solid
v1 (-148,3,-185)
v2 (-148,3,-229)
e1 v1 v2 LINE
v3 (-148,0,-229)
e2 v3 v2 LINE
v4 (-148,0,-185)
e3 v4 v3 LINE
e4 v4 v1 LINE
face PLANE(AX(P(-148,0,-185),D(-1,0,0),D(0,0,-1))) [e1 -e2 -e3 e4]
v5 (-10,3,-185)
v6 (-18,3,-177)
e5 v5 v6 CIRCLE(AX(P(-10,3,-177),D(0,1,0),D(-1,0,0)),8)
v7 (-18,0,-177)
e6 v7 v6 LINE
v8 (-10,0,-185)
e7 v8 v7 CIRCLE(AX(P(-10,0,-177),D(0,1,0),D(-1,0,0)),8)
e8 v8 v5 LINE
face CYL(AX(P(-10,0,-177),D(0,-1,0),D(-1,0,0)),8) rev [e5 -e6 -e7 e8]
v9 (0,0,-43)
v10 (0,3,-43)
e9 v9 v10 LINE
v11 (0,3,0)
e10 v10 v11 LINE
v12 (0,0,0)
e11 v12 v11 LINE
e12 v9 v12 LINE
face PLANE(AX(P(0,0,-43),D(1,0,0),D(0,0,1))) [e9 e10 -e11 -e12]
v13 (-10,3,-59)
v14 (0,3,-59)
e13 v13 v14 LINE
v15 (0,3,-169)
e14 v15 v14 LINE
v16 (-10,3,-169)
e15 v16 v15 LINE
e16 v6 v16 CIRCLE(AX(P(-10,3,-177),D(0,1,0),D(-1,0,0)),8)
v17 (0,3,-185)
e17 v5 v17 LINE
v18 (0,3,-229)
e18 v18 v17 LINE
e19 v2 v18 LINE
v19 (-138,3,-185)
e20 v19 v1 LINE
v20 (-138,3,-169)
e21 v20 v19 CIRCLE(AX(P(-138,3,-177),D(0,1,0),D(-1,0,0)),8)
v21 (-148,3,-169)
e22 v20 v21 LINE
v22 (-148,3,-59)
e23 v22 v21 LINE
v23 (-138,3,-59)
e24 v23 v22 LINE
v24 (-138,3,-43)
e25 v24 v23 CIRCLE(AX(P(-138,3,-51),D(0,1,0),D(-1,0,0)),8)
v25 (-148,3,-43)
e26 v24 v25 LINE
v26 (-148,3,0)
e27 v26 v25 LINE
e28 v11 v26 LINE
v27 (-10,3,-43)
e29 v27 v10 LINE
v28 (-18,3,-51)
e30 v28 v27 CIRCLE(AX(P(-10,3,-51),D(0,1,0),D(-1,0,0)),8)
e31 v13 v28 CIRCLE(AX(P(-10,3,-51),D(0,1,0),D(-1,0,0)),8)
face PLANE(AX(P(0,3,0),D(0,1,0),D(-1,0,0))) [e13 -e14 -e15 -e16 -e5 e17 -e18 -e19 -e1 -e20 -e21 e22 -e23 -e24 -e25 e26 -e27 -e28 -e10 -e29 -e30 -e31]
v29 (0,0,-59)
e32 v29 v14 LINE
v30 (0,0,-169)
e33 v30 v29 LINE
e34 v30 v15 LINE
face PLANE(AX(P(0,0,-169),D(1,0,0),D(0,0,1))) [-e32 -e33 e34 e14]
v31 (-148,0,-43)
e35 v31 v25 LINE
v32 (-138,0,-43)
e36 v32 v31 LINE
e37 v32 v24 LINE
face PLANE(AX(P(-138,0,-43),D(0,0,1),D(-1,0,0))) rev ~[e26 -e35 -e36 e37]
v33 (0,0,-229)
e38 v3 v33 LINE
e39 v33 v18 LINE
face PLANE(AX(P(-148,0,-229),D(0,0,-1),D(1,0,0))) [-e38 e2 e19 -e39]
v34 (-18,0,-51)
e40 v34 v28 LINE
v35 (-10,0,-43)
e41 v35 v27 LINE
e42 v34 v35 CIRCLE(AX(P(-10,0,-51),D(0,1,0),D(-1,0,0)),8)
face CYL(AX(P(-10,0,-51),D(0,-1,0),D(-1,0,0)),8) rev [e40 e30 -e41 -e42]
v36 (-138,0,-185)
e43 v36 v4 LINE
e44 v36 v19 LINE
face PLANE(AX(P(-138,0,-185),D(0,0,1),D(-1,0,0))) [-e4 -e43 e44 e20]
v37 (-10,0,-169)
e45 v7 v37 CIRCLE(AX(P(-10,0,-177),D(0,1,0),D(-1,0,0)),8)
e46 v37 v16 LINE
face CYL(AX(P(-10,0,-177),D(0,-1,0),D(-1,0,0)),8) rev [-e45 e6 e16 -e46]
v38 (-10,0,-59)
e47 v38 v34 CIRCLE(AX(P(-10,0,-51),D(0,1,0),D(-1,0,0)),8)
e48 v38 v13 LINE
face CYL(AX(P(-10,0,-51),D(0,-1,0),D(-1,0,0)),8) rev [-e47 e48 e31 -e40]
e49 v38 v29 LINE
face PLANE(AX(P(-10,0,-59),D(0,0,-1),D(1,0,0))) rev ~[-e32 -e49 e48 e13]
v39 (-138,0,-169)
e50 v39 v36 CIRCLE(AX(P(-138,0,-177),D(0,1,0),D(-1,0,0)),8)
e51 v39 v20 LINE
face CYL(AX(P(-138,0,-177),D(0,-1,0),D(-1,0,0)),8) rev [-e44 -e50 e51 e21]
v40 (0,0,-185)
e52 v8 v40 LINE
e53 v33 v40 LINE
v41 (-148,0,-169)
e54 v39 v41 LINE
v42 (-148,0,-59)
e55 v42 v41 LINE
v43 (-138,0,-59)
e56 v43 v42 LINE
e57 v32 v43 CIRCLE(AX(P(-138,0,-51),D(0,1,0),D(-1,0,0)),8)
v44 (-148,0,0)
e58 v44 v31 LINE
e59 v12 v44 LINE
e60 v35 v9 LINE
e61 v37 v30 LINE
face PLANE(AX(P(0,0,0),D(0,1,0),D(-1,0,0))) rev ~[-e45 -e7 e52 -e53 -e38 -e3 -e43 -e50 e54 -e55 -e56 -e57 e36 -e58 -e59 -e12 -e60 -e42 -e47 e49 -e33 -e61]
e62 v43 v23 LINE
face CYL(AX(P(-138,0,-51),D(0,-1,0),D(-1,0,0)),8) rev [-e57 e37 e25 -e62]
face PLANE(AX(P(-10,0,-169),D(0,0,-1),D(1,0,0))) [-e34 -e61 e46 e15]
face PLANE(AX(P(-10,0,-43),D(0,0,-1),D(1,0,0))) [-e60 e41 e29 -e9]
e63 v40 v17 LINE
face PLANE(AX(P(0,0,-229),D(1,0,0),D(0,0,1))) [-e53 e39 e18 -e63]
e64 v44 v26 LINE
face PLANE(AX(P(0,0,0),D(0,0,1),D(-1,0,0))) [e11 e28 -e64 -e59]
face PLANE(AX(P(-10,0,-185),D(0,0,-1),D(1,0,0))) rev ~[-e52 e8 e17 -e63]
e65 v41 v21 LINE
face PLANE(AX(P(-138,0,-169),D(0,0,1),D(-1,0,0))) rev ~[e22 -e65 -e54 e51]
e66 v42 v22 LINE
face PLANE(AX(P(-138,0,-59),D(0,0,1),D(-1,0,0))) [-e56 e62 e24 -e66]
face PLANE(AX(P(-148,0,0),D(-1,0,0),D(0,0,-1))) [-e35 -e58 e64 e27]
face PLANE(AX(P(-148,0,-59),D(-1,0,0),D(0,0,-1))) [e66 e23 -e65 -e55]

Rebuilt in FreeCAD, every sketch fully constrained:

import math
import FreeCAD as App
import Part
import Sketcher
Q = App.Units.Quantity

doc = App.newDocument("Part")
body = doc.addObject("PartDesign::Body", "Body")

# Sketch on XZ plane
sketch1 = body.newObject("Sketcher::SketchObject", "Sketch")
sketch1.AttachmentSupport = (doc.getObject("XZ_Plane"), [""])
sketch1.MapMode = "FlatFace"
sketch1.addGeometry(Part.LineSegment(App.Vector(-148, 0, 0), App.Vector(0, 0, 0)), False)
sketch1.addGeometry(Part.LineSegment(App.Vector(0, 0, 0), App.Vector(0, -43, 0)), False)
sketch1.addGeometry(Part.LineSegment(App.Vector(0, -43, 0), App.Vector(-10, -43, 0)), False)
sketch1.addGeometry(Part.ArcOfCircle(Part.Circle(App.Vector(-10, -51, 0), App.Vector(0, 0, 1), 8), math.radians(90), math.radians(270)), False)
sketch1.addGeometry(Part.LineSegment(App.Vector(-10, -59, 0), App.Vector(0, -59, 0)), False)
sketch1.addGeometry(Part.LineSegment(App.Vector(0, -59, 0), App.Vector(0, -169, 0)), False)
sketch1.addGeometry(Part.LineSegment(App.Vector(0, -169, 0), App.Vector(-10, -169, 0)), False)
sketch1.addGeometry(Part.ArcOfCircle(Part.Circle(App.Vector(-10, -177, 0), App.Vector(0, 0, 1), 8), math.radians(90), math.radians(270)), False)
sketch1.addGeometry(Part.LineSegment(App.Vector(-10, -185, 0), App.Vector(0, -185, 0)), False)
sketch1.addGeometry(Part.LineSegment(App.Vector(0, -185, 0), App.Vector(0, -229, 0)), False)
sketch1.addGeometry(Part.LineSegment(App.Vector(0, -229, 0), App.Vector(-148, -229, 0)), False)
sketch1.addGeometry(Part.LineSegment(App.Vector(-148, -229, 0), App.Vector(-148, -185, 0)), False)
sketch1.addGeometry(Part.LineSegment(App.Vector(-148, -185, 0), App.Vector(-138, -185, 0)), False)
sketch1.addGeometry(Part.ArcOfCircle(Part.Circle(App.Vector(-138, -177, 0), App.Vector(0, 0, 1), 8), math.radians(-90), math.radians(90)), False)
sketch1.addGeometry(Part.LineSegment(App.Vector(-138, -169, 0), App.Vector(-148, -169, 0)), False)
sketch1.addGeometry(Part.LineSegment(App.Vector(-148, -169, 0), App.Vector(-148, -59, 0)), False)
sketch1.addGeometry(Part.LineSegment(App.Vector(-148, -59, 0), App.Vector(-138, -59, 0)), False)
sketch1.addGeometry(Part.ArcOfCircle(Part.Circle(App.Vector(-138, -51, 0), App.Vector(0, 0, 1), 8), math.radians(-90), math.radians(90)), False)
sketch1.addGeometry(Part.LineSegment(App.Vector(-138, -43, 0), App.Vector(-148, -43, 0)), False)
sketch1.addGeometry(Part.LineSegment(App.Vector(-148, -43, 0), App.Vector(-148, 0, 0)), False)
sketch1.addConstraint(Sketcher.Constraint("Coincident", 0, 2, 1, 1))
sketch1.addConstraint(Sketcher.Constraint("Coincident", 1, 2, 2, 1))
sketch1.addConstraint(Sketcher.Constraint("Tangent", 2, 2, 3, 1))
sketch1.addConstraint(Sketcher.Constraint("Tangent", 3, 2, 4, 1))
sketch1.addConstraint(Sketcher.Constraint("Coincident", 4, 2, 5, 1))
sketch1.addConstraint(Sketcher.Constraint("Coincident", 5, 2, 6, 1))
sketch1.addConstraint(Sketcher.Constraint("Tangent", 6, 2, 7, 1))
sketch1.addConstraint(Sketcher.Constraint("Tangent", 7, 2, 8, 1))
sketch1.addConstraint(Sketcher.Constraint("Coincident", 8, 2, 9, 1))
sketch1.addConstraint(Sketcher.Constraint("Coincident", 9, 2, 10, 1))
sketch1.addConstraint(Sketcher.Constraint("Coincident", 10, 2, 11, 1))
sketch1.addConstraint(Sketcher.Constraint("Coincident", 11, 2, 12, 1))
sketch1.addConstraint(Sketcher.Constraint("Tangent", 12, 2, 13, 1))
sketch1.addConstraint(Sketcher.Constraint("Tangent", 13, 2, 14, 1))
sketch1.addConstraint(Sketcher.Constraint("Coincident", 14, 2, 15, 1))
sketch1.addConstraint(Sketcher.Constraint("Coincident", 15, 2, 16, 1))
sketch1.addConstraint(Sketcher.Constraint("Tangent", 16, 2, 17, 1))
sketch1.addConstraint(Sketcher.Constraint("Tangent", 17, 2, 18, 1))
sketch1.addConstraint(Sketcher.Constraint("Coincident", 18, 2, 19, 1))
sketch1.addConstraint(Sketcher.Constraint("Coincident", 19, 2, 0, 1))
sketch1.addConstraint(Sketcher.Constraint("Horizontal", 0))
sketch1.addConstraint(Sketcher.Constraint("Vertical", 1))
sketch1.addConstraint(Sketcher.Constraint("Horizontal", 2))
sketch1.addConstraint(Sketcher.Constraint("Horizontal", 4))
sketch1.addConstraint(Sketcher.Constraint("Vertical", 5))
sketch1.addConstraint(Sketcher.Constraint("Horizontal", 6))
sketch1.addConstraint(Sketcher.Constraint("Horizontal", 8))
sketch1.addConstraint(Sketcher.Constraint("Vertical", 9))
sketch1.addConstraint(Sketcher.Constraint("Horizontal", 10))
sketch1.addConstraint(Sketcher.Constraint("Vertical", 11))
sketch1.addConstraint(Sketcher.Constraint("Horizontal", 12))
sketch1.addConstraint(Sketcher.Constraint("Horizontal", 14))
sketch1.addConstraint(Sketcher.Constraint("Vertical", 15))
sketch1.addConstraint(Sketcher.Constraint("Horizontal", 16))
sketch1.addConstraint(Sketcher.Constraint("Horizontal", 18))
sketch1.addConstraint(Sketcher.Constraint("Vertical", 19))
sketch1.addConstraint(Sketcher.Constraint("Coincident", 0, 2, -1, 1))
sketch1.addConstraint(Sketcher.Constraint("Equal", 3, 7))
sketch1.addConstraint(Sketcher.Constraint("Equal", 7, 13))
sketch1.addConstraint(Sketcher.Constraint("Equal", 13, 17))
sketch1.addConstraint(Sketcher.Constraint("PointOnObject", 4, 2, -2))
sketch1.addConstraint(Sketcher.Constraint("PointOnObject", 8, 2, -2))
sketch1.addConstraint(Sketcher.Constraint("Horizontal", 7, 3, 13, 3))
sketch1.addConstraint(Sketcher.Constraint("Horizontal", 3, 3, 17, 3))
sketch1.addConstraint(Sketcher.Constraint("Vertical", 3, 3, 7, 3))
sketch1.addConstraint(Sketcher.Constraint("Vertical", 13, 3, 17, 3))
sketch1.addConstraint(Sketcher.Constraint("Vertical", 11, 2, 14, 2))
sketch1.addConstraint(Sketcher.Constraint("Vertical", 15, 2, 18, 2))
sketch1.addConstraint(Sketcher.Constraint("Equal", 8, 12))
sketch1.addConstraint(Sketcher.Constraint("Radius", 3, Q("8 mm")))
sketch1.addConstraint(Sketcher.Constraint("DistanceX", 0, 1, 0, 2, Q("148 mm")))
sketch1.addConstraint(Sketcher.Constraint("DistanceX", 2, 2, 2, 1, Q("10 mm")))
sketch1.addConstraint(Sketcher.Constraint("DistanceY", 3, 3, -1, 1, Q("51 mm")))
sketch1.addConstraint(Sketcher.Constraint("DistanceY", 9, 2, -1, 1, Q("229 mm")))
sketch1.addConstraint(Sketcher.Constraint("DistanceY", 7, 3, 3, 3, Q("126 mm")))
pad1 = body.newObject("PartDesign::Pad", "Pad")
pad1.Profile = sketch1
pad1.Length = 3
pad1.Reversed = True

doc.recompute()
